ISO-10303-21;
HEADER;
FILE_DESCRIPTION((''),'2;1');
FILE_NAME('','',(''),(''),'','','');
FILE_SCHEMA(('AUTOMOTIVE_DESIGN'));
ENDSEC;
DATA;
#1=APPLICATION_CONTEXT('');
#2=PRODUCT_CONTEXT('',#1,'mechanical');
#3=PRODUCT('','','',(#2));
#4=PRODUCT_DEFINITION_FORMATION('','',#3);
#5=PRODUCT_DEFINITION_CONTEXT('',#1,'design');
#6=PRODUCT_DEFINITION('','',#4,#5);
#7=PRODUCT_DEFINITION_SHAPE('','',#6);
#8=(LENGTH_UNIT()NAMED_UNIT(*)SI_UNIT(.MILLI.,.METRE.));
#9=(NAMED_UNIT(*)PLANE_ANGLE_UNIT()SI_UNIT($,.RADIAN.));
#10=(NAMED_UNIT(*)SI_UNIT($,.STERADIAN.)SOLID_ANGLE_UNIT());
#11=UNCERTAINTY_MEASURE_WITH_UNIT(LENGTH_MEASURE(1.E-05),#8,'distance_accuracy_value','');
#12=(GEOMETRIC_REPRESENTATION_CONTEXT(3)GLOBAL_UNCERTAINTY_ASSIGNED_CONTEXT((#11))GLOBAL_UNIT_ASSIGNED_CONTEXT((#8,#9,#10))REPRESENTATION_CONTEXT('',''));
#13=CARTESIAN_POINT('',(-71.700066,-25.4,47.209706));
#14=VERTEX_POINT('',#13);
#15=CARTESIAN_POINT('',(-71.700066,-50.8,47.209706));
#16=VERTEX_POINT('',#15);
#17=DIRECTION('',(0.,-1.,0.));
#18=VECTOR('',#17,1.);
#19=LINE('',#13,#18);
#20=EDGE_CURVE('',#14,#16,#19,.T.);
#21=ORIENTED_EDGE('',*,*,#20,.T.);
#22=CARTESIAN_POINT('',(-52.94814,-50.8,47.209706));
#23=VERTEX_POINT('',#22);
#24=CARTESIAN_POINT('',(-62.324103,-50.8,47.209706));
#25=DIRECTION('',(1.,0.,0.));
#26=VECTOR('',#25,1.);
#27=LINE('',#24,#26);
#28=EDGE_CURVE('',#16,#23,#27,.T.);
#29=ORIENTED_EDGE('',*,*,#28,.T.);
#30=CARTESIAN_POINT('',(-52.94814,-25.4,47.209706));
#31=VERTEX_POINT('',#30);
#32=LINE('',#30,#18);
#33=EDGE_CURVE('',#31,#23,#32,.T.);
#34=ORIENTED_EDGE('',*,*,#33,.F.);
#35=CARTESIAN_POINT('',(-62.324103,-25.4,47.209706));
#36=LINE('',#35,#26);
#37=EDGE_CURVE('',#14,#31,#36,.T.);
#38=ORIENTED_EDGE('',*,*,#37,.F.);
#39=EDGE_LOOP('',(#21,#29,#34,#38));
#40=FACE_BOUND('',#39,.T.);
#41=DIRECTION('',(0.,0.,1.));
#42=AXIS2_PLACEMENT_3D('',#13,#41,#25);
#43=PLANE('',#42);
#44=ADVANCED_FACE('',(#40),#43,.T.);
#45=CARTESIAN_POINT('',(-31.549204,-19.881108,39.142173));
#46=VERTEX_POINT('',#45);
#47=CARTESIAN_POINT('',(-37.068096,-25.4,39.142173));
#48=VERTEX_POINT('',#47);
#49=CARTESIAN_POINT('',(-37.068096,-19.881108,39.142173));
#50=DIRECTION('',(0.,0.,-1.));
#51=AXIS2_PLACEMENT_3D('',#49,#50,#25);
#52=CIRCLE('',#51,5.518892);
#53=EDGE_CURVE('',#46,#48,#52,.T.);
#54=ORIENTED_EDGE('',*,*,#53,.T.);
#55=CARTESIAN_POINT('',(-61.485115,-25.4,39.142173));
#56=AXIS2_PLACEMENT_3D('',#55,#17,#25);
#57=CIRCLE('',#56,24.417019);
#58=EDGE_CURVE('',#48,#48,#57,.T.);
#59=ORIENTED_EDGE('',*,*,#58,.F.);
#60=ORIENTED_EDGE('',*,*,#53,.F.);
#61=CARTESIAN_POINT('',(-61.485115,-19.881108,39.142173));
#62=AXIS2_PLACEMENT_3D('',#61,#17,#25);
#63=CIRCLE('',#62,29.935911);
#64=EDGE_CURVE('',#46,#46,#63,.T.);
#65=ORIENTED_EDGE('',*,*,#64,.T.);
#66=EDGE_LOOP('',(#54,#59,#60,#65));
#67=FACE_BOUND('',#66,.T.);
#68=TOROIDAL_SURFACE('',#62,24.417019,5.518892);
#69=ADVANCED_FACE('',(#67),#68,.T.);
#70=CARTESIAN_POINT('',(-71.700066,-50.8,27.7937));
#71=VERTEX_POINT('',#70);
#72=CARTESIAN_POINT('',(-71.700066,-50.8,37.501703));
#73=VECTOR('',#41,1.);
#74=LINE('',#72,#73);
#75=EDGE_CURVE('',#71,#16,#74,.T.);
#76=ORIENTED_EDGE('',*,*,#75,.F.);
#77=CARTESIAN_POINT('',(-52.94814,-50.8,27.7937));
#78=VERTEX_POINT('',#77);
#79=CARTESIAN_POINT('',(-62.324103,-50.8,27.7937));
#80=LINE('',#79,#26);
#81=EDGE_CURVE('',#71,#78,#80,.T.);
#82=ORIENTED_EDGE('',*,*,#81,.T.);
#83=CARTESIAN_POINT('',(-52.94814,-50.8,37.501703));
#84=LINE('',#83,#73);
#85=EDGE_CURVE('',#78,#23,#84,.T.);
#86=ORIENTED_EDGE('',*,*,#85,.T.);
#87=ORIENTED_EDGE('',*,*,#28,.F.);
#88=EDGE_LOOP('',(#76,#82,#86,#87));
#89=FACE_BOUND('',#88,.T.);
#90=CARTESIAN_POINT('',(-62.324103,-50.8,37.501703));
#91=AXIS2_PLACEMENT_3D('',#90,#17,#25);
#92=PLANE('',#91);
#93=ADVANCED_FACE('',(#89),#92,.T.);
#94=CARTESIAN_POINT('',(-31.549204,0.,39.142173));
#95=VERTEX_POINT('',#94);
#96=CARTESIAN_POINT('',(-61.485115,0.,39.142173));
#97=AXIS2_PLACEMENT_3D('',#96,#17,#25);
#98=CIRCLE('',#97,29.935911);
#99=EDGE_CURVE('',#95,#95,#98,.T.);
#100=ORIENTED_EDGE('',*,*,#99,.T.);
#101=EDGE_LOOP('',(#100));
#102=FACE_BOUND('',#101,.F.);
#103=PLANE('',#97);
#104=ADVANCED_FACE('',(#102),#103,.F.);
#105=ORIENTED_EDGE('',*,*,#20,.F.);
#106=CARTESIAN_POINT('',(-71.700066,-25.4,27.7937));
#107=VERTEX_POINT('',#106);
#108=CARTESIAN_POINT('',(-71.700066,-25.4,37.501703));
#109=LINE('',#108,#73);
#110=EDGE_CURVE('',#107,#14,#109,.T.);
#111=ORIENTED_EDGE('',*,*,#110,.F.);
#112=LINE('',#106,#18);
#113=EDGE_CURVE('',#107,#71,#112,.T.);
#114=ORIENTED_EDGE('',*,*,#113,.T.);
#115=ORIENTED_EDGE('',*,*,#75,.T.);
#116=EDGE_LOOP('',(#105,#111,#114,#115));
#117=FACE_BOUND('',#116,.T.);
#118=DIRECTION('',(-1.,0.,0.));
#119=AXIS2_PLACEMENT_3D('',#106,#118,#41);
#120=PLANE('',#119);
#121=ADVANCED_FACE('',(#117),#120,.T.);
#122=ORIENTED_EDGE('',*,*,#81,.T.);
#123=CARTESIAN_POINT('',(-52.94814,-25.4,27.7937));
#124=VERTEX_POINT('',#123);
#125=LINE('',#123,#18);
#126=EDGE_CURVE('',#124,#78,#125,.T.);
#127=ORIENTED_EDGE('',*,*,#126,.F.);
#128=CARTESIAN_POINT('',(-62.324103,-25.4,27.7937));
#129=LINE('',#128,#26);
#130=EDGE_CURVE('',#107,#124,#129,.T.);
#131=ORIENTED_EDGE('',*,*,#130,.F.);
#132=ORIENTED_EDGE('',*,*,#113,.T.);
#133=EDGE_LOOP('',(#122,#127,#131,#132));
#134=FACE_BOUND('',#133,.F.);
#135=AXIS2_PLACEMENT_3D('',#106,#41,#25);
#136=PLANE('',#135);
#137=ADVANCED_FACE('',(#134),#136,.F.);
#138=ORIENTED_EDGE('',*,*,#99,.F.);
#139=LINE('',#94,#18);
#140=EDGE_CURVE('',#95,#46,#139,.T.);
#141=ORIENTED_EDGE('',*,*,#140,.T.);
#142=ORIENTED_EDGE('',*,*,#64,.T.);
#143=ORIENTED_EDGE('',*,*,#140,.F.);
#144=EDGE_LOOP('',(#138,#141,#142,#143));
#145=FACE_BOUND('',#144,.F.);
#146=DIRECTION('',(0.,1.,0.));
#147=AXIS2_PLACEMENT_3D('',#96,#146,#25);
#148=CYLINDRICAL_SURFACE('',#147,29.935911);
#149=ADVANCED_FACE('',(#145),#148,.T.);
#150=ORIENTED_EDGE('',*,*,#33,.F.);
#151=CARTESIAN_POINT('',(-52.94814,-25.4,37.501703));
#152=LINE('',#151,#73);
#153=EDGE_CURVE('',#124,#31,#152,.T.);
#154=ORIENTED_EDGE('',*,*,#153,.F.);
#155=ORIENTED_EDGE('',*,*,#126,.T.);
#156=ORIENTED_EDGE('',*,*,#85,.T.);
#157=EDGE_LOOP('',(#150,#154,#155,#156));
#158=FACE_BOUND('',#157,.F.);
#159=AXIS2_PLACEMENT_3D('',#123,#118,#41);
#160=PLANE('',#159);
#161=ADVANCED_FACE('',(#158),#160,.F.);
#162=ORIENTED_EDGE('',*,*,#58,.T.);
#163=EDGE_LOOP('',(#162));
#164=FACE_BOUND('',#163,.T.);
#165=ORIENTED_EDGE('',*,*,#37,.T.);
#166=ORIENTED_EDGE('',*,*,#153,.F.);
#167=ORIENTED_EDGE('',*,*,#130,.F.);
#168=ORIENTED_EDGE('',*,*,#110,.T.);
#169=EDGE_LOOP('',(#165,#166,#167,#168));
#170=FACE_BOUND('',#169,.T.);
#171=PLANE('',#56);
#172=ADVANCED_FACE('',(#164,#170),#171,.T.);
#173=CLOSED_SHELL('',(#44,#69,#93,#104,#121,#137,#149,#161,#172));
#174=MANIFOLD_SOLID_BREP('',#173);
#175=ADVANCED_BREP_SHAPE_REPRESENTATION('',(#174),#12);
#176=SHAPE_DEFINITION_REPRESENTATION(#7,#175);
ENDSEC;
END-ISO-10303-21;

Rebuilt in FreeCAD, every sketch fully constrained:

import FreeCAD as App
import Part
import Sketcher
Q = App.Units.Quantity


def edges_at(feature, points):
    """Names of the edges that pass closest to the given points."""
    edges = feature.Shape.Edges
    near = lambda p: min(range(len(edges)), key=lambda i: edges[i].distToShape(Part.Vertex(*p))[0])
    return sorted({f"Edge{near(p) + 1}" for p in points})


def add_polygon(sketch, points):
    """Adds a closed chain of lines whose ends are joined by coincident constraints."""
    first, n = sketch.GeometryCount, len(points)
    for a, b in zip(points, points[1:] + points[:1]):
        sketch.addGeometry(Part.LineSegment(App.Vector(*a, 0), App.Vector(*b, 0)), False)
    for i in range(n):
        sketch.addConstraint(Sketcher.Constraint("Coincident", first + i, 2, first + (i + 1) % n, 1))

doc = App.newDocument("Part")
body = doc.addObject("PartDesign::Body", "Body")

sketch1 = body.newObject("Sketcher::SketchObject", "Sketch")
sketch1.AttachmentSupport = (doc.getObject("XZ_Plane"), [""])
sketch1.MapMode = "FlatFace"
sketch1.addGeometry(Part.Circle(App.Vector(-61.485115, 39.142173, 0), App.Vector(0, 0, 1), 29.935911), False)
sketch1.addConstraint([
    Sketcher.Constraint("Diameter", 0, 59.871822),
    Sketcher.Constraint("DistanceX", 0, 3, -1, 1, 61.485115),
    Sketcher.Constraint("DistanceY", -1, 1, 0, 3, 39.142173),
])
pad1 = body.newObject("PartDesign::Pad", "Pad")
pad1.Profile = sketch1
pad1.Length = Q("1 in")
doc.recompute()

fillet = body.newObject("PartDesign::Fillet", "Fillet")
fillet.Base = (pad1, edges_at(pad1, [(-91.421, -25.4, 39.142)]))
fillet.Radius = 5.518892

sketch2 = body.newObject("Sketcher::SketchObject", "Sketch001")
sketch2.AttachmentSupport = (doc.getObject("XZ_Plane"), [""])
sketch2.MapMode = "FlatFace"
sketch2.AttachmentOffset = App.Placement(App.Vector(0, 0, 1 * 25.4), App.Rotation())
add_polygon(sketch2, [(-71.700066, 47.209706), (-71.700066, 27.7937), (-52.94814, 27.7937), (-52.94814, 47.209706)])
sketch2.addConstraint([
    Sketcher.Constraint("Vertical", 0),
    Sketcher.Constraint("Horizontal", 1),
    Sketcher.Constraint("Vertical", 2),
    Sketcher.Constraint("Horizontal", 3),
    Sketcher.Constraint("DistanceY", -1, 1, 0, 2, 27.7937),
    Sketcher.Constraint("DistanceX", 1, 1, 1, 2, 18.751926),
    Sketcher.Constraint("DistanceY", 0, 2, 0, 1, 19.416006),
    Sketcher.Constraint("DistanceX", 1, 2, -1, 1, 52.94814),
])
pad2 = body.newObject("PartDesign::Pad", "Pad001")
pad2.Profile = sketch2
pad2.Length = Q("1 in")

doc.recompute()
